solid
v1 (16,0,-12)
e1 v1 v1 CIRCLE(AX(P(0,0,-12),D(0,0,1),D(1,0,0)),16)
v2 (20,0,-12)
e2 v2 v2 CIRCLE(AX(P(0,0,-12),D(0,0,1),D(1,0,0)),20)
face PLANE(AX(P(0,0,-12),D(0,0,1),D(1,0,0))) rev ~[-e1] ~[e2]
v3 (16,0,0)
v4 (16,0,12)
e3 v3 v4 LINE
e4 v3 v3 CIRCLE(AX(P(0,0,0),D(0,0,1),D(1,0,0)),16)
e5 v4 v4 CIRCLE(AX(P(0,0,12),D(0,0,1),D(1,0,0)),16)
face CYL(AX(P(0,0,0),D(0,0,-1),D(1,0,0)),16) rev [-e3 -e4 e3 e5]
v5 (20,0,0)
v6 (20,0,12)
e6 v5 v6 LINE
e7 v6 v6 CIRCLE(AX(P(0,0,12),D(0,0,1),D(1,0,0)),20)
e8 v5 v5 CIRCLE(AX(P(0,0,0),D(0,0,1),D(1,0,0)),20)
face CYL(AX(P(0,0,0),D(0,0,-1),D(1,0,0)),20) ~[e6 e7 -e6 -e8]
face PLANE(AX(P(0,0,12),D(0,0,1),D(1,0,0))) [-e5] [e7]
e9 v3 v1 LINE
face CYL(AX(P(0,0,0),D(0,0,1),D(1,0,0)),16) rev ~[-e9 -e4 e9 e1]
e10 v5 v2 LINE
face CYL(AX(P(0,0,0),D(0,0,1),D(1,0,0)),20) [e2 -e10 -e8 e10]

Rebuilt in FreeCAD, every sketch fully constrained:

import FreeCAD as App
import Part
import Sketcher

V = App.Vector

doc = App.newDocument("Part")
body = doc.addObject("PartDesign::Body", "Body")

# Sketch on XY plane
sketch1 = doc.addObject("Sketcher::SketchObject", "Sketch")
body.addObject(sketch1)
sketch1.AttachmentSupport = (doc.XY_Plane, [""])
sketch1.MapMode = "FlatFace"
sketch1.addGeometry([
    Part.Circle(V(0, 0, 0), V(0, 0, 1), 20),
    Part.Circle(V(0, 0, 0), V(0, 0, 1), 16),
], False)
sketch1.addConstraint([
    Sketcher.Constraint("Coincident", 0, 3, -1, 1),
    Sketcher.Constraint("Coincident", 1, 3, -1, 1),
    Sketcher.Constraint("Diameter", 0, 40.0),
    Sketcher.Constraint("Diameter", 1, 32.0),
])
pad1 = doc.addObject("PartDesign::Pad", "Pad")
body.addObject(pad1)
pad1.Profile = sketch1
pad1.Length = 24
pad1.Midplane = True

doc.recompute()
